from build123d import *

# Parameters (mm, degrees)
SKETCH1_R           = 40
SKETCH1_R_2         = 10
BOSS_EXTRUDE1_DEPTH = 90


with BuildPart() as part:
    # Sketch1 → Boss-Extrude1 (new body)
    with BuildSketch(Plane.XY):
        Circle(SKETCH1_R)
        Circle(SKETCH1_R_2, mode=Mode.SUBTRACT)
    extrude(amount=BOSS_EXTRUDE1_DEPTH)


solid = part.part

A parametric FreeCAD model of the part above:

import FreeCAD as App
import Part
import Sketcher
from FreeCAD import Vector
Q = App.Units.Quantity

doc = App.newDocument("Part")
body = doc.addObject("PartDesign::Body", "Body")

# Sketch on XY plane
sketch1 = body.newObject("Sketcher::SketchObject", "Sketch")
sketch1.AttachmentSupport = (doc.getObject("XY_Plane"), [""])
sketch1.MapMode = "FlatFace"
sketch1.addGeometry(Part.Circle(Vector(0, 0, 0), Vector(0, 0, 1), 40), False)
sketch1.addGeometry(Part.Circle(Vector(0, 0, 0), Vector(0, 0, 1), 10), False)
sketch1.addConstraint(Sketcher.Constraint("Coincident", 0, 3, -1, 1))
sketch1.addConstraint(Sketcher.Constraint("Coincident", 1, 3, -1, 1))
sketch1.addConstraint(Sketcher.Constraint("Diameter", 0, Q("80 mm")))
sketch1.addConstraint(Sketcher.Constraint("Diameter", 1, Q("20 mm")))
pad1 = body.newObject("PartDesign::Pad", "Pad")
pad1.Profile = sketch1
pad1.Length = 90

doc.recompute()
